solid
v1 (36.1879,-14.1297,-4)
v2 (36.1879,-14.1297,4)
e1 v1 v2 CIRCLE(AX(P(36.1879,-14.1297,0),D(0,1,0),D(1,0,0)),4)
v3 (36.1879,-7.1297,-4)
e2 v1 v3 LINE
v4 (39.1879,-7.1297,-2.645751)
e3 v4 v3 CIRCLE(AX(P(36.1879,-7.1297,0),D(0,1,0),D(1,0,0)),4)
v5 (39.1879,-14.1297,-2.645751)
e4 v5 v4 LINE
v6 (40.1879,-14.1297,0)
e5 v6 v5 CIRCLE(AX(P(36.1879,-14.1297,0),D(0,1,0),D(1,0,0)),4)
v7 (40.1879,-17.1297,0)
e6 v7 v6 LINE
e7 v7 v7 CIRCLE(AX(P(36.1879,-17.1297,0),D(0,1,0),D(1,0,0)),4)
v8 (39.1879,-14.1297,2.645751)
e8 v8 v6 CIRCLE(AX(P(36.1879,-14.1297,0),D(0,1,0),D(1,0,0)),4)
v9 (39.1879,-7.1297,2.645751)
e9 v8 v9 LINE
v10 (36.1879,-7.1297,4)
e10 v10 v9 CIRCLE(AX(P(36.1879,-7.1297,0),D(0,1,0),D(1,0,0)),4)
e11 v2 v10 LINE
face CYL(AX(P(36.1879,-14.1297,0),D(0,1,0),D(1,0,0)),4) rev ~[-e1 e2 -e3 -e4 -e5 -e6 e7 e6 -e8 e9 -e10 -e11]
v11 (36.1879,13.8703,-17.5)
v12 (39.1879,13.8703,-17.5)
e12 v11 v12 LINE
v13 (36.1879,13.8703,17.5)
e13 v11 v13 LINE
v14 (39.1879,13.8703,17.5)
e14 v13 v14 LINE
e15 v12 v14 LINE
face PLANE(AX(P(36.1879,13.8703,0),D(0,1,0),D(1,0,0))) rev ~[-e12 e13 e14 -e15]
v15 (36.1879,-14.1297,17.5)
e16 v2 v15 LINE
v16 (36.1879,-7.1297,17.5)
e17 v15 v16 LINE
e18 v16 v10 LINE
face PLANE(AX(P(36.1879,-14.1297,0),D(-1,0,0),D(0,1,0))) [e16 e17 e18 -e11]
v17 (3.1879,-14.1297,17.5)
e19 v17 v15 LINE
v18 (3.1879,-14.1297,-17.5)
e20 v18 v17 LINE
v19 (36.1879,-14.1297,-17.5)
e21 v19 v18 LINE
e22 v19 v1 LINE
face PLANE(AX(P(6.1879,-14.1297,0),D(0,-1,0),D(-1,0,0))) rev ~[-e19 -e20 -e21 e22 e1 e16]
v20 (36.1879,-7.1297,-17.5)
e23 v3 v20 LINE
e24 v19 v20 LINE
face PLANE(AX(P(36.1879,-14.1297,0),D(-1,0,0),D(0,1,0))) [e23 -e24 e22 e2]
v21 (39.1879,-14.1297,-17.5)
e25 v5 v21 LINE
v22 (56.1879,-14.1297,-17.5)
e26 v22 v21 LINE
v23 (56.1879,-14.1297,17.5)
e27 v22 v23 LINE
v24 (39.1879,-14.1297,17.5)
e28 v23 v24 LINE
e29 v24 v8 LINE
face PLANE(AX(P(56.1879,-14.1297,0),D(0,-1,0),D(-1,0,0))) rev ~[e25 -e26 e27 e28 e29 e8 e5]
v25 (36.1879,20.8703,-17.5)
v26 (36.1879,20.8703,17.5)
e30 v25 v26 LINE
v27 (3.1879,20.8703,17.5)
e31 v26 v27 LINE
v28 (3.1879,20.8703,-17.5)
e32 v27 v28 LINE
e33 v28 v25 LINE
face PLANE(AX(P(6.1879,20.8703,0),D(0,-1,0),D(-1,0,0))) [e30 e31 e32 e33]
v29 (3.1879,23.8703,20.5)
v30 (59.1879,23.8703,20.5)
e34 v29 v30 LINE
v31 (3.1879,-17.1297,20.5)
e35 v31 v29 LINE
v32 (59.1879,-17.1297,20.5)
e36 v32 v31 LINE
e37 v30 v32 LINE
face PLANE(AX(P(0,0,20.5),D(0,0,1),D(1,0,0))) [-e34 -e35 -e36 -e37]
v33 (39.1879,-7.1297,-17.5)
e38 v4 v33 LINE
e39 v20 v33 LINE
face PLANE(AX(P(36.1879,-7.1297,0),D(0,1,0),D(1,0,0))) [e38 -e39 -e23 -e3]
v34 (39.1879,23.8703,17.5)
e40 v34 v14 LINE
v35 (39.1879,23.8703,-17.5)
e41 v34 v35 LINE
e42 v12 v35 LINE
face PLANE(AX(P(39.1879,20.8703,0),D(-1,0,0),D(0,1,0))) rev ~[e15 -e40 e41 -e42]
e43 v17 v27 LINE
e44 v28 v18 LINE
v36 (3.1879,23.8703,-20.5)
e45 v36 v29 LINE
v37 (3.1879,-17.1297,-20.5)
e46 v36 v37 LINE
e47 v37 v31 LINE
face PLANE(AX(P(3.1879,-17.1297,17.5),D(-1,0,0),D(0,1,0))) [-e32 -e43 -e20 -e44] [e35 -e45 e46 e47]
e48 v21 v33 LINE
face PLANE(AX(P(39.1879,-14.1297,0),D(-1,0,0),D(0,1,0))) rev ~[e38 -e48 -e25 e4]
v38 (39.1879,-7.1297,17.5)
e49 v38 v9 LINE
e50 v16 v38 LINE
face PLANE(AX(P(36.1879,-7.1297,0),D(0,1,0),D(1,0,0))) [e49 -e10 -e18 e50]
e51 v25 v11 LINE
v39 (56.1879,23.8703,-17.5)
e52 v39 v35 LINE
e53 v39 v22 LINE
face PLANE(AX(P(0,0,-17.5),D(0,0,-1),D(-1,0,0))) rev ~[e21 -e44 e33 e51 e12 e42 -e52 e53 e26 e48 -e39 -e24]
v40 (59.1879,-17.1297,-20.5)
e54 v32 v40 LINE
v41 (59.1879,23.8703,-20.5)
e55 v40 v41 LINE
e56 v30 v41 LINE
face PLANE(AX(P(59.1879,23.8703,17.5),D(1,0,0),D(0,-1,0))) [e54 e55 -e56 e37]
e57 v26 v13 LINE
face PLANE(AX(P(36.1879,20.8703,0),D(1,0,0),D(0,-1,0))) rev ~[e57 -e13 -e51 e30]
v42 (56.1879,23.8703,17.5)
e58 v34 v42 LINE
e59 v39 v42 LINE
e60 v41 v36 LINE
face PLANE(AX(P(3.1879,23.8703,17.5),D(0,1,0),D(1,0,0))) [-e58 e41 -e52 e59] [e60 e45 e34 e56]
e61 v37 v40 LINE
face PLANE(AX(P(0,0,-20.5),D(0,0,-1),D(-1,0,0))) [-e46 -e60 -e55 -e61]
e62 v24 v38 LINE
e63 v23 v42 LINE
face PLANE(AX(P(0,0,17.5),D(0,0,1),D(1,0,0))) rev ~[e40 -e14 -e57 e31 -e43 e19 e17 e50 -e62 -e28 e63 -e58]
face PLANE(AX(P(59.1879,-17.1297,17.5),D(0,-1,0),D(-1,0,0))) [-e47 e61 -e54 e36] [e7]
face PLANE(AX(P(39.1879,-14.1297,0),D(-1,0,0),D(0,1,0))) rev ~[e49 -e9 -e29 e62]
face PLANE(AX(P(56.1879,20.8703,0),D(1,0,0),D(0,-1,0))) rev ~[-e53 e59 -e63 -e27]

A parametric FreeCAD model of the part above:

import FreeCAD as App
import Part
import Sketcher

doc = App.newDocument("Part")
body = doc.addObject("PartDesign::Body", "Body")
body.AllowCompound = True

sketch1 = body.newObject("Sketcher::SketchObject", "Sketch")
sketch1.AttachmentSupport = (doc.getObject("XY_Plane"), [""])
sketch1.MapMode = "FlatFace"
sketch1.addGeometry([
    Part.LineSegment(App.Vector(3.1879, 20.8703, 0), App.Vector(36.1879, 20.8703, 0)),
    Part.LineSegment(App.Vector(36.1879, 20.8703, 0), App.Vector(36.1879, 13.8703, 0)),
    Part.LineSegment(App.Vector(36.1879, 13.8703, 0), App.Vector(39.1879, 13.8703, 0)),
    Part.LineSegment(App.Vector(39.1879, 13.8703, 0), App.Vector(39.1879, 23.8703, 0)),
    Part.LineSegment(App.Vector(39.1879, 23.8703, 0), App.Vector(3.1879, 23.8703, 0)),
    Part.LineSegment(App.Vector(3.1879, 23.8703, 0), App.Vector(3.1879, 20.8703, 0)),
    Part.LineSegment(App.Vector(36.1879, -7.1297, 0), App.Vector(36.1879, -14.1297, 0)),
    Part.LineSegment(App.Vector(36.1879, -14.1297, 0), App.Vector(3.1879, -14.1297, 0)),
    Part.LineSegment(App.Vector(3.1879, -14.1297, 0), App.Vector(3.1879, -17.1297, 0)),
    Part.LineSegment(App.Vector(3.1879, -17.1297, 0), App.Vector(59.1879, -17.1297, 0)),
    Part.LineSegment(App.Vector(59.1879, -17.1297, 0), App.Vector(59.1879, 23.8703, 0)),
    Part.LineSegment(App.Vector(59.1879, 23.8703, 0), App.Vector(56.1879, 23.8703, 0)),
    Part.LineSegment(App.Vector(56.1879, 23.8703, 0), App.Vector(56.1879, -14.1297, 0)),
    Part.LineSegment(App.Vector(56.1879, -14.1297, 0), App.Vector(39.1879, -14.1297, 0)),
    Part.LineSegment(App.Vector(39.1879, -14.1297, 0), App.Vector(39.1879, -7.1297, 0)),
    Part.LineSegment(App.Vector(39.1879, -7.1297, 0), App.Vector(36.1879, -7.1297, 0)),
], False)
sketch1.addConstraint([
    Sketcher.Constraint("Coincident", 0, 2, 1, 1),
    Sketcher.Constraint("Coincident", 1, 2, 2, 1),
    Sketcher.Constraint("Coincident", 2, 2, 3, 1),
    Sketcher.Constraint("Coincident", 3, 2, 4, 1),
    Sketcher.Constraint("Coincident", 4, 2, 5, 1),
    Sketcher.Constraint("Coincident", 5, 2, 0, 1),
    Sketcher.Constraint("Coincident", 6, 2, 7, 1),
    Sketcher.Constraint("Coincident", 7, 2, 8, 1),
    Sketcher.Constraint("Coincident", 8, 2, 9, 1),
    Sketcher.Constraint("Coincident", 9, 2, 10, 1),
    Sketcher.Constraint("Coincident", 10, 2, 11, 1),
    Sketcher.Constraint("Coincident", 11, 2, 12, 1),
    Sketcher.Constraint("Coincident", 12, 2, 13, 1),
    Sketcher.Constraint("Coincident", 13, 2, 14, 1),
    Sketcher.Constraint("Coincident", 14, 2, 15, 1),
    Sketcher.Constraint("Coincident", 15, 2, 6, 1),
    Sketcher.Constraint("Horizontal", 0),
    Sketcher.Constraint("Vertical", 1),
    Sketcher.Constraint("Horizontal", 2),
    Sketcher.Constraint("Vertical", 3),
    Sketcher.Constraint("Horizontal", 4),
    Sketcher.Constraint("Vertical", 5),
    Sketcher.Constraint("Vertical", 6),
    Sketcher.Constraint("Horizontal", 7),
    Sketcher.Constraint("Vertical", 8),
    Sketcher.Constraint("Horizontal", 9),
    Sketcher.Constraint("Vertical", 10),
    Sketcher.Constraint("Horizontal", 11),
    Sketcher.Constraint("Vertical", 12),
    Sketcher.Constraint("Horizontal", 13),
    Sketcher.Constraint("Vertical", 14),
    Sketcher.Constraint("Horizontal", 15),
    Sketcher.Constraint("Horizontal", 4, 2, 10, 2),
    Sketcher.Constraint("Horizontal", 7, 2, 12, 2),
    Sketcher.Constraint("Vertical", 1, 2, 6, 2),
    Sketcher.Constraint("Vertical", 5, 2, 7, 2),
    Sketcher.Constraint("Vertical", 3, 2, 13, 2),
    Sketcher.Constraint("Equal", 2, 11),
    Sketcher.Constraint("Equal", 15, 5),
    Sketcher.Constraint("Equal", 1, 6),
    Sketcher.Constraint("Equal", 5, 8),
    Sketcher.Constraint("DistanceX", 2, 1, 2, 2, 3.0),
    Sketcher.Constraint("DistanceY", 1, 2, 1, 1, 7.0),
    Sketcher.Constraint("DistanceY", 6, 2, 0, 2, 35.0),
    Sketcher.Constraint("DistanceX", 2, 2, 9, 2, 20.0),
    Sketcher.Constraint("DistanceX", 0, 1, 0, 2, 33.0),
    Sketcher.Constraint("DistanceX", -1, 1, 0, 2, 36.188),
    Sketcher.Constraint("DistanceY", -1, 1, 0, 2, 20.8703),
])
pad1 = body.newObject("PartDesign::Pad", "Pad")
pad1.Profile = sketch1
pad1.Length = 35
pad1.Midplane = True

sketch2 = body.newObject("Sketcher::SketchObject", "Sketch001")
sketch2.AttachmentSupport = (doc.getObject("XY_Plane"), [""])
sketch2.MapMode = "FlatFace"
sketch2.AttachmentOffset = App.Placement(App.Vector(0, 0, -17.5), App.Rotation())
sketch2.addGeometry([
    Part.LineSegment(App.Vector(3.1879, 23.8703, 0), App.Vector(59.1879, 23.8703, 0)),
    Part.LineSegment(App.Vector(59.1879, 23.8703, 0), App.Vector(59.1879, -17.1297, 0)),
    Part.LineSegment(App.Vector(59.1879, -17.1297, 0), App.Vector(3.1879, -17.1297, 0)),
    Part.LineSegment(App.Vector(3.1879, -17.1297, 0), App.Vector(3.1879, 23.8703, 0)),
], False)
sketch2.addConstraint([
    Sketcher.Constraint("Coincident", 0, 2, 1, 1),
    Sketcher.Constraint("Coincident", 1, 2, 2, 1),
    Sketcher.Constraint("Coincident", 2, 2, 3, 1),
    Sketcher.Constraint("Coincident", 3, 2, 0, 1),
    Sketcher.Constraint("Horizontal", 0),
    Sketcher.Constraint("Vertical", 1),
    Sketcher.Constraint("Horizontal", 2),
    Sketcher.Constraint("Vertical", 3),
    Sketcher.Constraint("DistanceX", 0, 1, 0, 2, 56.0),
    Sketcher.Constraint("DistanceY", 1, 2, 1, 1, 41.0),
    Sketcher.Constraint("DistanceX", -1, 1, 0, 2, 59.188),
    Sketcher.Constraint("DistanceY", -1, 1, 0, 2, 23.8703),
])
pad2 = body.newObject("PartDesign::Pad", "Pad001")
pad2.Profile = sketch2
pad2.Length = 3
pad2.Reversed = True

sketch3 = body.newObject("Sketcher::SketchObject", "Sketch002")
sketch3.AttachmentSupport = (doc.getObject("XY_Plane"), [""])
sketch3.MapMode = "FlatFace"
sketch3.AttachmentOffset = App.Placement(App.Vector(0, 0, 17.5), App.Rotation())
sketch3.addGeometry([
    Part.LineSegment(App.Vector(59.1879, 23.8703, 0), App.Vector(3.1879, 23.8703, 0)),
    Part.LineSegment(App.Vector(3.1879, 23.8703, 0), App.Vector(3.1879, -17.1297, 0)),
    Part.LineSegment(App.Vector(3.1879, -17.1297, 0), App.Vector(59.1879, -17.1297, 0)),
    Part.LineSegment(App.Vector(59.1879, -17.1297, 0), App.Vector(59.1879, 23.8703, 0)),
], False)
sketch3.addConstraint([
    Sketcher.Constraint("Coincident", 0, 2, 1, 1),
    Sketcher.Constraint("Coincident", 1, 2, 2, 1),
    Sketcher.Constraint("Coincident", 2, 2, 3, 1),
    Sketcher.Constraint("Coincident", 3, 2, 0, 1),
    Sketcher.Constraint("Horizontal", 0),
    Sketcher.Constraint("Vertical", 1),
    Sketcher.Constraint("Horizontal", 2),
    Sketcher.Constraint("Vertical", 3),
    Sketcher.Constraint("DistanceX", 0, 2, 0, 1, 56.0),
    Sketcher.Constraint("DistanceY", 1, 2, 1, 1, 41.0),
    Sketcher.Constraint("DistanceX", -1, 1, 0, 2, 3.188),
    Sketcher.Constraint("DistanceY", -1, 1, 0, 2, 23.8703),
])
pad3 = body.newObject("PartDesign::Pad", "Pad002")
pad3.Profile = sketch3
pad3.Length = 3

sketch4 = body.newObject("Sketcher::SketchObject", "Sketch003")
sketch4.AttachmentSupport = (doc.getObject("XZ_Plane"), [""])
sketch4.MapMode = "FlatFace"
sketch4.AttachmentOffset = App.Placement(App.Vector(0, 0, 14.1297), App.Rotation())
sketch4.addGeometry(Part.Circle(App.Vector(36.1879, 0, 0), App.Vector(0, 0, 1), 4), False)
sketch4.addConstraint([
    Sketcher.Constraint("PointOnObject", 0, 3, -1),
    Sketcher.Constraint("Diameter", 0, 8.0),
    Sketcher.Constraint("DistanceX", -1, 1, 0, 3, 36.188),
])
pocket1 = body.newObject("PartDesign::Pocket", "Pocket")
pocket1.Profile = sketch4
pocket1.Length = 15
pocket1.Midplane = True

doc.recompute()
